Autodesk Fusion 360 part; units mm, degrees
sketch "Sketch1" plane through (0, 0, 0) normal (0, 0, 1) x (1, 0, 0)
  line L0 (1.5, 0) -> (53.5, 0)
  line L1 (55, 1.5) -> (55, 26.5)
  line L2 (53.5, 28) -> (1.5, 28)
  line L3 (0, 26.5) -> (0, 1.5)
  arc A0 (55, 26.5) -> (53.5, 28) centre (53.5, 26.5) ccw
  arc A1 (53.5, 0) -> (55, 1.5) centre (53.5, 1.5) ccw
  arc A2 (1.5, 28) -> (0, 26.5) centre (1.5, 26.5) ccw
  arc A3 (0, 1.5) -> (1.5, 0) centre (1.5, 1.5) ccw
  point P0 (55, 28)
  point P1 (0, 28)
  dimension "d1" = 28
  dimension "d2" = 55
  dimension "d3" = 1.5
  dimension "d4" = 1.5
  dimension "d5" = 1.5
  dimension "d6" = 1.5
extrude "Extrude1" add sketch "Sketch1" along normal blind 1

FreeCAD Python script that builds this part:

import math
import FreeCAD as App
import Part
import Sketcher

V = App.Vector

doc = App.newDocument("Part")
params = doc.addObject("Spreadsheet::Sheet", "Params")
for row, (alias, value) in enumerate([
    ("sketch1_radius", "1.5 mm"),
    ("pad1_length", "1 mm"),
], start=1):
    params.set(f"A{row}", alias)
    params.set(f"B{row}", "=" + value)
    params.setAlias(f"B{row}", alias)

body = doc.addObject("PartDesign::Body", "Body")

# Sketch on XY plane
sketch1 = body.newObject("Sketcher::SketchObject", "Sketch")
sketch1.AttachmentSupport = (doc.getObject("XY_Plane"), [""])
sketch1.MapMode = "FlatFace"
sketch1.addGeometry([
    Part.ArcOfCircle(Part.Circle(V(1.5, 1.5, 0), V(0, 0, 1), 1.5), math.radians(180), math.radians(270)),  # 0
    Part.LineSegment(V(1.5, 0, 0), V(53.5, 0, 0)),  # 1
    Part.ArcOfCircle(Part.Circle(V(53.5, 1.5, 0), V(0, 0, 1), 1.5), math.radians(-90), math.radians(0)),  # 2
    Part.LineSegment(V(55, 1.5, 0), V(55, 26.5, 0)),  # 3
    Part.ArcOfCircle(Part.Circle(V(53.5, 26.5, 0), V(0, 0, 1), 1.5), math.radians(0), math.radians(90)),  # 4
    Part.LineSegment(V(53.5, 28, 0), V(1.5, 28, 0)),  # 5
    Part.ArcOfCircle(Part.Circle(V(1.5, 26.5, 0), V(0, 0, 1), 1.5), math.radians(90), math.radians(180)),  # 6
    Part.LineSegment(V(0, 26.5, 0), V(0, 1.5, 0)),  # 7
], False)
sketch1.addConstraint([
    Sketcher.Constraint("Tangent", 0, 2, 1, 1),
    Sketcher.Constraint("Tangent", 1, 2, 2, 1),
    Sketcher.Constraint("Tangent", 2, 2, 3, 1),
    Sketcher.Constraint("Tangent", 3, 2, 4, 1),
    Sketcher.Constraint("Tangent", 4, 2, 5, 1),
    Sketcher.Constraint("Tangent", 5, 2, 6, 1),
    Sketcher.Constraint("Tangent", 6, 2, 7, 1),
    Sketcher.Constraint("Tangent", 7, 2, 0, 1),
    Sketcher.Constraint("Horizontal", 1),
    Sketcher.Constraint("Vertical", 3),
    Sketcher.Constraint("Horizontal", 5),
    Sketcher.Constraint("Vertical", 7),
    Sketcher.Constraint("Equal", 0, 2),
    Sketcher.Constraint("Equal", 2, 4),
    Sketcher.Constraint("Equal", 4, 6),
    Sketcher.Constraint("PointOnObject", 0, 2, -1),
    Sketcher.Constraint("PointOnObject", 6, 2, -2),
    Sketcher.Constraint("Radius", 0, 1.5),
    Sketcher.Constraint("DistanceX", -1, 1, 2, 2, 55.0),
    Sketcher.Constraint("DistanceY", -1, 1, 4, 2, 28.0),
])
sketch1.setExpression("Constraints[17]", "Params.sketch1_radius")
pad1 = body.newObject("PartDesign::Pad", "Pad")
pad1.Profile = sketch1
pad1.setExpression("Length", "Params.pad1_length")

doc.recompute()
